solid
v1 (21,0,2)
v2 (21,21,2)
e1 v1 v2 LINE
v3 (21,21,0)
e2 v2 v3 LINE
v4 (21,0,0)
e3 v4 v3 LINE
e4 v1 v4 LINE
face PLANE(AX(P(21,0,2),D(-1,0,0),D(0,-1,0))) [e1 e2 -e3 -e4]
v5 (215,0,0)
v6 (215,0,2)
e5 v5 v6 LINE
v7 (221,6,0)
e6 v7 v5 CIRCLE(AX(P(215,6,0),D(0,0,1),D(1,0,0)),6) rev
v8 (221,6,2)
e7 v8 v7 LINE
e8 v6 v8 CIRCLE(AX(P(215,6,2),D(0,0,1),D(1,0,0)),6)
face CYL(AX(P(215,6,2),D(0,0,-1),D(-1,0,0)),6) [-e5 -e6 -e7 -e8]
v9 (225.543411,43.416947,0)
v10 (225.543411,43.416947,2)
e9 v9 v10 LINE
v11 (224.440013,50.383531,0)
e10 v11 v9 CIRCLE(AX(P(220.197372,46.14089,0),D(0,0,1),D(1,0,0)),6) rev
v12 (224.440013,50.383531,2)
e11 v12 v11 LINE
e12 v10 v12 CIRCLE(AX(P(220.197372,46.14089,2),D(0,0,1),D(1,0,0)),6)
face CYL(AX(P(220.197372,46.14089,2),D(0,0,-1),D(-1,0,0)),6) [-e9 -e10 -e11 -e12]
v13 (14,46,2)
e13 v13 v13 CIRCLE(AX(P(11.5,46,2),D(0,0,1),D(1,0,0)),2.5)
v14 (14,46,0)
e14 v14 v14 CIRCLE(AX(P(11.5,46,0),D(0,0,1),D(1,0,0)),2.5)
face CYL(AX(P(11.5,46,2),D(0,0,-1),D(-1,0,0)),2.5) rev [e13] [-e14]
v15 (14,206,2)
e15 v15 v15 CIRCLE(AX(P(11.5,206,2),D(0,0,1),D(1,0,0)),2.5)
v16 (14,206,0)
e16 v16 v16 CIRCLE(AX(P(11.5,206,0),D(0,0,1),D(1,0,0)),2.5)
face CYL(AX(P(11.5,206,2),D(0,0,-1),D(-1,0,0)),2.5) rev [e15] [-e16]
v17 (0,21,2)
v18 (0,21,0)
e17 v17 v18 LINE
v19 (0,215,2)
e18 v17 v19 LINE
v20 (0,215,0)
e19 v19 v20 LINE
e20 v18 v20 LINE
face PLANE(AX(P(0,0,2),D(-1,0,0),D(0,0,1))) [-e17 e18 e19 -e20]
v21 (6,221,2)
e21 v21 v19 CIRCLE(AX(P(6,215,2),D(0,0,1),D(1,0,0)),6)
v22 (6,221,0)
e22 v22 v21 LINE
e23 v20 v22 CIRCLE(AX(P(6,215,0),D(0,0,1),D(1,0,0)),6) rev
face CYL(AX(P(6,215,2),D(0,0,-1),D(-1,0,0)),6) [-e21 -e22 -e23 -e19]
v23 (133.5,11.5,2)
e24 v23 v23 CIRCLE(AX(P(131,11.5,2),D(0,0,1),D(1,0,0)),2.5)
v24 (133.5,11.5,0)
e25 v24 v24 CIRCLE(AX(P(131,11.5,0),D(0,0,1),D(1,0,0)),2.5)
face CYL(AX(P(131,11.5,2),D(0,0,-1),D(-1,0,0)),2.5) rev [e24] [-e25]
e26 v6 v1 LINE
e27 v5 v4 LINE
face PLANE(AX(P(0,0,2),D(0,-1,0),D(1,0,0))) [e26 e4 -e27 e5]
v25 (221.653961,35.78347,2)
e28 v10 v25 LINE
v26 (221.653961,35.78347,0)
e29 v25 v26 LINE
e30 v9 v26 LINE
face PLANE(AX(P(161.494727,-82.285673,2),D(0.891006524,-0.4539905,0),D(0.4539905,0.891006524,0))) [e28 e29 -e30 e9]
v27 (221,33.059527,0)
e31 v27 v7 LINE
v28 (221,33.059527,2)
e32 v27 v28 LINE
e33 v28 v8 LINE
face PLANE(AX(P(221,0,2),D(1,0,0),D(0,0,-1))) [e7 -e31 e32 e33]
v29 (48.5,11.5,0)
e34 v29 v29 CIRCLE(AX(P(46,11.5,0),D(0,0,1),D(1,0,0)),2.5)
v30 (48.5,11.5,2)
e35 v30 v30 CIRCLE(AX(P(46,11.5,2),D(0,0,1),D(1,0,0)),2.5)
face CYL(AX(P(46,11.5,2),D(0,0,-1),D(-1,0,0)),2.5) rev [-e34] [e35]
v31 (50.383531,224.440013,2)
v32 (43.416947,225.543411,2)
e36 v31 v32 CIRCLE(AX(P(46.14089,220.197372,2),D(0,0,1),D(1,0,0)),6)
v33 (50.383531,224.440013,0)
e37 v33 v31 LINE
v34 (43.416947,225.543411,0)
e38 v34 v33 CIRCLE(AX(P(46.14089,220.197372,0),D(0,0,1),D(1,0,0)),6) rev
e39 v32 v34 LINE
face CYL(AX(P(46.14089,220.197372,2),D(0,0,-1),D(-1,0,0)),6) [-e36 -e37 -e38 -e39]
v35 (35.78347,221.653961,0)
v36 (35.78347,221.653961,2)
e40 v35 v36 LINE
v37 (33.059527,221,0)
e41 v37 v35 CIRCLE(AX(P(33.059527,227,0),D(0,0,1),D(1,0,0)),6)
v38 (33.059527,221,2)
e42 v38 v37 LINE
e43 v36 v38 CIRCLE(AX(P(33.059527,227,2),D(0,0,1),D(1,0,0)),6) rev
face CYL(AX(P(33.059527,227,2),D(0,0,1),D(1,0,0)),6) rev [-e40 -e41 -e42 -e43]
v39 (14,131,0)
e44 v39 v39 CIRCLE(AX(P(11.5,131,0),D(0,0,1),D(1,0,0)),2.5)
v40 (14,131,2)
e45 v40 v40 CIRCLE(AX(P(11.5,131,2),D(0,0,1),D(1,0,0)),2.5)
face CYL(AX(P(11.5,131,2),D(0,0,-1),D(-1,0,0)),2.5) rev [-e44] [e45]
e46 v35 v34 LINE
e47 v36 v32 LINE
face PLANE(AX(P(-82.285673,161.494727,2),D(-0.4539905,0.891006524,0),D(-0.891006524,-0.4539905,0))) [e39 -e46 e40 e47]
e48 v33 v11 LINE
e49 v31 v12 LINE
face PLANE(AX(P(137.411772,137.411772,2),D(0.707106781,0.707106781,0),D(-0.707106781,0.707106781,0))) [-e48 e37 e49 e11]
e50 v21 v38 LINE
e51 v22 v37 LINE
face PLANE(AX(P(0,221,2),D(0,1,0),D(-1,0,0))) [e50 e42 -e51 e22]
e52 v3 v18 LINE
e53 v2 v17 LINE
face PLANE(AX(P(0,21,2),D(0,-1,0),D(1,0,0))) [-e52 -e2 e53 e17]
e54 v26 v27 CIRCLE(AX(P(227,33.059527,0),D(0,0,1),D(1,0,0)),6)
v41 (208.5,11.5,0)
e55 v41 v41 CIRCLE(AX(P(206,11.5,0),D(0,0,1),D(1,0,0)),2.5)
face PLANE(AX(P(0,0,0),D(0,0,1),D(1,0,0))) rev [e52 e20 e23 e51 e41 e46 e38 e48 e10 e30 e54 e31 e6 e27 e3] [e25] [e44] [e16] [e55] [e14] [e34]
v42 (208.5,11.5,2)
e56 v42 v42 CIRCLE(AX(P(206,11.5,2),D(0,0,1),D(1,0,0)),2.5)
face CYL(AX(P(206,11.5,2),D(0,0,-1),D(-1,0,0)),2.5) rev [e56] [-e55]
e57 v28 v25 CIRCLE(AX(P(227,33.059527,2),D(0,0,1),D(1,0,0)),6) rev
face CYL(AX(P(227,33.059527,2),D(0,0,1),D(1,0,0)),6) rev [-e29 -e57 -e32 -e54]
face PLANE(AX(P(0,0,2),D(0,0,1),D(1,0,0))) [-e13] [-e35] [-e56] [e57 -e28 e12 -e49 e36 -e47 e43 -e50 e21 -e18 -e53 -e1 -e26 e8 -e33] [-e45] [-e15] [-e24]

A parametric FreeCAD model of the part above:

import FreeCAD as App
import Part
import Sketcher
Q = App.Units.Quantity


def edges_at(feature, points):
    """Names of the edges that pass closest to the given points."""
    edges = feature.Shape.Edges
    near = lambda p: min(range(len(edges)), key=lambda i: edges[i].distToShape(Part.Vertex(*p))[0])
    return sorted({f"Edge{near(p) + 1}" for p in points})

doc = App.newDocument("Part")
body = doc.addObject("PartDesign::Body", "Body")

# Sketch on XY plane
sketch1 = body.newObject("Sketcher::SketchObject", "Sketch")
sketch1.AttachmentSupport = (doc.getObject("XY_Plane"), [""])
sketch1.MapMode = "FlatFace"
sketch1.addGeometry(Part.LineSegment(App.Vector(21, 21, 0), App.Vector(21, 0, 0)), False)
sketch1.addGeometry(Part.LineSegment(App.Vector(21, 0, 0), App.Vector(221, 0, 0)), False)
sketch1.addGeometry(Part.LineSegment(App.Vector(221, 0, 0), App.Vector(221, 34.5, 0)), False)
sketch1.addGeometry(Part.LineSegment(App.Vector(221, 34.5, 0), App.Vector(222.5, 37.5, 0)), False)
sketch1.addGeometry(Part.LineSegment(App.Vector(222.5, 37.5, 0), App.Vector(227.5, 47.3, 0)), False)
sketch1.addGeometry(Part.LineSegment(App.Vector(227.5, 47.3, 0), App.Vector(47.3, 227.5, 0)), False)
sketch1.addGeometry(Part.LineSegment(App.Vector(47.3, 227.5, 0), App.Vector(34.5, 221, 0)), False)
sketch1.addGeometry(Part.LineSegment(App.Vector(34.5, 221, 0), App.Vector(0, 221, 0)), False)
sketch1.addGeometry(Part.LineSegment(App.Vector(0, 221, 0), App.Vector(0, 21, 0)), False)
sketch1.addGeometry(Part.LineSegment(App.Vector(0, 21, 0), App.Vector(21, 21, 0)), False)
sketch1.addGeometry(Part.Circle(App.Vector(206, 11.5, 0), App.Vector(0, 0, 1), 2.5), False)
sketch1.addGeometry(Part.Circle(App.Vector(131, 11.5, 0), App.Vector(0, 0, 1), 2.5), False)
sketch1.addGeometry(Part.Circle(App.Vector(46, 11.5, 0), App.Vector(0, 0, 1), 2.5), False)
sketch1.addGeometry(Part.Circle(App.Vector(11.5, 46, 0), App.Vector(0, 0, 1), 2.5), False)
sketch1.addGeometry(Part.Circle(App.Vector(11.5, 131, 0), App.Vector(0, 0, 1), 2.5), False)
sketch1.addGeometry(Part.Circle(App.Vector(11.5, 206, 0), App.Vector(0, 0, 1), 2.5), False)
sketch1.addConstraint(Sketcher.Constraint("Coincident", 0, 2, 1, 1))
sketch1.addConstraint(Sketcher.Constraint("Coincident", 1, 2, 2, 1))
sketch1.addConstraint(Sketcher.Constraint("Coincident", 2, 2, 3, 1))
sketch1.addConstraint(Sketcher.Constraint("Coincident", 3, 2, 4, 1))
sketch1.addConstraint(Sketcher.Constraint("Coincident", 4, 2, 5, 1))
sketch1.addConstraint(Sketcher.Constraint("Coincident", 5, 2, 6, 1))
sketch1.addConstraint(Sketcher.Constraint("Coincident", 6, 2, 7, 1))
sketch1.addConstraint(Sketcher.Constraint("Coincident", 7, 2, 8, 1))
sketch1.addConstraint(Sketcher.Constraint("Coincident", 8, 2, 9, 1))
sketch1.addConstraint(Sketcher.Constraint("Coincident", 9, 2, 0, 1))
sketch1.addConstraint(Sketcher.Constraint("Vertical", 0))
sketch1.addConstraint(Sketcher.Constraint("Horizontal", 1))
sketch1.addConstraint(Sketcher.Constraint("Vertical", 2))
sketch1.addConstraint(Sketcher.Constraint("Horizontal", 7))
sketch1.addConstraint(Sketcher.Constraint("Vertical", 8))
sketch1.addConstraint(Sketcher.Constraint("Horizontal", 9))
sketch1.addConstraint(Sketcher.Constraint("Equal", 10, 11))
sketch1.addConstraint(Sketcher.Constraint("Equal", 11, 12))
sketch1.addConstraint(Sketcher.Constraint("Equal", 12, 13))
sketch1.addConstraint(Sketcher.Constraint("Equal", 13, 14))
sketch1.addConstraint(Sketcher.Constraint("Equal", 14, 15))
sketch1.addConstraint(Sketcher.Constraint("PointOnObject", 0, 2, -1))
sketch1.addConstraint(Sketcher.Constraint("PointOnObject", 7, 2, -2))
sketch1.addConstraint(Sketcher.Constraint("Parallel", 3, 4))
sketch1.addConstraint(Sketcher.Constraint("Horizontal", 10, 3, 11, 3))
sketch1.addConstraint(Sketcher.Constraint("Horizontal", 11, 3, 12, 3))
sketch1.addConstraint(Sketcher.Constraint("Vertical", 13, 3, 14, 3))
sketch1.addConstraint(Sketcher.Constraint("Vertical", 14, 3, 15, 3))
sketch1.addConstraint(Sketcher.Constraint("Equal", 9, 0))
sketch1.addConstraint(Sketcher.Constraint("Equal", 7, 2))
sketch1.addConstraint(Sketcher.Constraint("Equal", 1, 8))
sketch1.addConstraint(Sketcher.Constraint("Diameter", 10, 5.0))
sketch1.addConstraint(Sketcher.Constraint("DistanceX", 1, 1, 1, 2, 200.0))
sketch1.addConstraint(Sketcher.Constraint("DistanceX", 9, 1, 9, 2, 21.0))
sketch1.addConstraint(Sketcher.Constraint("Angle", 3, Q("63 deg")))
sketch1.addConstraint(Sketcher.Constraint("Angle", 5, Q("135 deg")))
sketch1.addConstraint(Sketcher.Constraint("Angle", 6, Q("-153 deg")))
sketch1.addConstraint(Sketcher.Constraint("Distance", 4, 11.0))
sketch1.addConstraint(Sketcher.Constraint("DistanceX", 7, 2, 7, 1, 34.5))
sketch1.addConstraint(Sketcher.Constraint("DistanceX", -1, 1, 10, 3, 206.0))
sketch1.addConstraint(Sketcher.Constraint("DistanceX", -1, 1, 11, 3, 131.0))
sketch1.addConstraint(Sketcher.Constraint("DistanceX", -1, 1, 12, 3, 46.0))
sketch1.addConstraint(Sketcher.Constraint("DistanceY", -1, 1, 13, 3, 46.0))
sketch1.addConstraint(Sketcher.Constraint("DistanceY", -1, 1, 14, 3, 131.0))
sketch1.addConstraint(Sketcher.Constraint("DistanceY", -1, 1, 15, 3, 206.0))
sketch1.addConstraint(Sketcher.Constraint("DistanceY", 10, 3, 2, 2, 23.0))
sketch1.addConstraint(Sketcher.Constraint("DistanceY", 2, 2, 3, 2, 3.0))
sketch1.addConstraint(Sketcher.Constraint("DistanceX", 15, 3, 6, 2, 23.0))
pad1 = body.newObject("PartDesign::Pad", "Pad")
pad1.Profile = sketch1
pad1.Length = 2
doc.recompute()

fillet = body.newObject("PartDesign::Fillet", "Fillet")
fillet.Base = (pad1, edges_at(pad1, [
    (0, 221, 1),
    (34.5, 221, 1),
    (47.301, 227.522, 1),
    (227.522, 47.301, 1),
    (221, 34.5, 1),
    (221, 0, 1),
]))
fillet.Radius = 6

doc.recompute()
